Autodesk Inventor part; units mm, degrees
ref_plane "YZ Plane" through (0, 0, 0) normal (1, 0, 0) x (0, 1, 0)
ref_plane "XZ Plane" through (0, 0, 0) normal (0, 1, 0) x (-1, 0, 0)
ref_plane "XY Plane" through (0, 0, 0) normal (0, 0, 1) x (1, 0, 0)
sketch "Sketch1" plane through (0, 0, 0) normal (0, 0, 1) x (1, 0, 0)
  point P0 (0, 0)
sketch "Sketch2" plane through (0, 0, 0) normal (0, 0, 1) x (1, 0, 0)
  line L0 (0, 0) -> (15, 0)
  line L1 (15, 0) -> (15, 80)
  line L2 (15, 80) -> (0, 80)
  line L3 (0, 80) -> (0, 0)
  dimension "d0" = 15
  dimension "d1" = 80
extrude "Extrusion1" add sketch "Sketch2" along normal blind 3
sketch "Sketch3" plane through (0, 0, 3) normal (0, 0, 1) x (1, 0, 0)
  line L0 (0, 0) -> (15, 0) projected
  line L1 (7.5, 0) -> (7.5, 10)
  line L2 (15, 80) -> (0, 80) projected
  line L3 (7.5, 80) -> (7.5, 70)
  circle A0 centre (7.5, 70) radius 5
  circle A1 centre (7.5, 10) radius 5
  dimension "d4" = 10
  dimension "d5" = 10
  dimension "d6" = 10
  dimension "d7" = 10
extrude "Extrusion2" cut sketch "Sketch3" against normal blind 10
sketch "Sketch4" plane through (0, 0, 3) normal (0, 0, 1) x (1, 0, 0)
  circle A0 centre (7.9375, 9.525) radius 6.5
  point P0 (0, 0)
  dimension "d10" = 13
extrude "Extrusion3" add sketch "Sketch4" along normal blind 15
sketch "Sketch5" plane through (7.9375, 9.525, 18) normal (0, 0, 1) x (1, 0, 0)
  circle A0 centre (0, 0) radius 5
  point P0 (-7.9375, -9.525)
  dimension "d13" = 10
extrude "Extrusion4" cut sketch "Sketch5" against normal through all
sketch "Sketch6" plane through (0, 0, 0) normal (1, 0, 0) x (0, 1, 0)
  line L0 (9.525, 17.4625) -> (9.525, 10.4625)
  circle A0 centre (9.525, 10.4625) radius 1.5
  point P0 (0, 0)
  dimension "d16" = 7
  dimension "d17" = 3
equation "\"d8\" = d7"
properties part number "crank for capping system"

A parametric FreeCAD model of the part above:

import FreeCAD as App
import Part
import Sketcher
from FreeCAD import Vector
Q = App.Units.Quantity


def add_polygon(sketch, points):
    """Adds a closed chain of lines whose ends are joined by coincident constraints."""
    first, n = sketch.GeometryCount, len(points)
    for a, b in zip(points, points[1:] + points[:1]):
        sketch.addGeometry(Part.LineSegment(App.Vector(*a, 0), App.Vector(*b, 0)), False)
    for i in range(n):
        sketch.addConstraint(Sketcher.Constraint("Coincident", first + i, 2, first + (i + 1) % n, 1))

doc = App.newDocument("Part")
body = doc.addObject("PartDesign::Body", "Body")

# Sketch on XY plane
sketch1 = doc.addObject("Sketcher::SketchObject", "Sketch")
body.addObject(sketch1)
sketch1.AttachmentSupport = (doc.XY_Plane, [""])
sketch1.MapMode = "FlatFace"
add_polygon(sketch1, [(0, 80), (0, 0), (15, 0), (15, 80)])  # lines 0-3
sketch1.addConstraint([
    Sketcher.Constraint("Vertical", 0),
    Sketcher.Constraint("Horizontal", 1),
    Sketcher.Constraint("Vertical", 2),
    Sketcher.Constraint("Horizontal", 3),
    Sketcher.Constraint("Coincident", 0, 2, -1, 1),
    Sketcher.Constraint("DistanceX", 1, 1, 1, 2, Q("15 mm")),
    Sketcher.Constraint("DistanceY", 0, 2, 0, 1, Q("80 mm")),
])
pad1 = doc.addObject("PartDesign::Pad", "Pad")
body.addObject(pad1)
pad1.Profile = sketch1
pad1.Length = 3

# Sketch on XY plane
sketch2 = doc.addObject("Sketcher::SketchObject", "Sketch001")
body.addObject(sketch2)
sketch2.AttachmentSupport = (doc.XY_Plane, [""])
sketch2.MapMode = "FlatFace"
sketch2.AttachmentOffset = App.Placement(Vector(0, 0, 3), App.Rotation())
sketch2.addGeometry([
    Part.Circle(Vector(8, 70, 0), Vector(0, 0, 1), 5),
    Part.Circle(Vector(8, 10, 0), Vector(0, 0, 1), 5),
], False)
sketch2.addConstraint([
    Sketcher.Constraint("Equal", 0, 1),
    Sketcher.Constraint("Vertical", 0, 3, 1, 3),
    Sketcher.Constraint("Diameter", 0, Q("10 mm")),
    Sketcher.Constraint("DistanceY", -1, 1, 1, 3, Q("10 mm")),
    Sketcher.Constraint("DistanceY", -1, 1, 0, 3, Q("70 mm")),
    Sketcher.Constraint("DistanceX", -1, 1, 0, 3, Q("7.5 mm")),
])
pocket1 = doc.addObject("PartDesign::Pocket", "Pocket")
body.addObject(pocket1)
pocket1.Profile = sketch2
pocket1.Length = 10

# Sketch on XY plane
sketch3 = doc.addObject("Sketcher::SketchObject", "Sketch002")
body.addObject(sketch3)
sketch3.AttachmentSupport = (doc.XY_Plane, [""])
sketch3.MapMode = "FlatFace"
sketch3.AttachmentOffset = App.Placement(Vector(0, 0, 3), App.Rotation())
sketch3.addGeometry(Part.Circle(Vector(8, 10, 0), Vector(0, 0, 1), 6), False)
sketch3.addConstraint([
    Sketcher.Constraint("Diameter", 0, Q("13 mm")),
    Sketcher.Constraint("DistanceY", -1, 1, 0, 3, Q("9.525 mm")),
    Sketcher.Constraint("DistanceX", -1, 1, 0, 3, Q("7.9375 mm")),
])
pad2 = doc.addObject("PartDesign::Pad", "Pad001")
body.addObject(pad2)
pad2.Profile = sketch3
pad2.Length = 15

# Sketch on XY plane
sketch4 = doc.addObject("Sketcher::SketchObject", "Sketch003")
body.addObject(sketch4)
sketch4.AttachmentSupport = (doc.XY_Plane, [""])
sketch4.MapMode = "FlatFace"
sketch4.AttachmentOffset = App.Placement(Vector(0, 0, 18), App.Rotation())
sketch4.addGeometry(Part.Circle(Vector(8, 10, 0), Vector(0, 0, 1), 5), False)
sketch4.addConstraint([
    Sketcher.Constraint("Diameter", 0, Q("10 mm")),
    Sketcher.Constraint("DistanceY", -1, 1, 0, 3, Q("9.525 mm")),
    Sketcher.Constraint("DistanceX", -1, 1, 0, 3, Q("7.9375 mm")),
])
pocket2 = doc.addObject("PartDesign::Pocket", "Pocket001")
body.addObject(pocket2)
pocket2.Profile = sketch4
pocket2.Type = "ThroughAll"

doc.recompute()
